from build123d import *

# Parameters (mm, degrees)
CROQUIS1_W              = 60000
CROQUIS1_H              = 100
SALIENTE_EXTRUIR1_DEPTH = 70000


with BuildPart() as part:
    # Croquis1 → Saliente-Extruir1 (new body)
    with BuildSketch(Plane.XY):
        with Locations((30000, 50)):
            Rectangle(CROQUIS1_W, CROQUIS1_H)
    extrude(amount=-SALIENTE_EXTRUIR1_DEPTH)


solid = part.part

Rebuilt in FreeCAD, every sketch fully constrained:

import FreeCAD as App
import Part
import Sketcher


def add_polygon(sketch, points):
    """Adds a closed chain of lines whose ends are joined by coincident constraints."""
    first, n = sketch.GeometryCount, len(points)
    for a, b in zip(points, points[1:] + points[:1]):
        sketch.addGeometry(Part.LineSegment(App.Vector(*a, 0), App.Vector(*b, 0)), False)
    for i in range(n):
        sketch.addConstraint(Sketcher.Constraint("Coincident", first + i, 2, first + (i + 1) % n, 1))

doc = App.newDocument("Part")
body = doc.addObject("PartDesign::Body", "Body")

# Sketch on XY plane
sketch1 = body.newObject("Sketcher::SketchObject", "Sketch")
sketch1.AttachmentSupport = (doc.getObject("XY_Plane"), [""])
sketch1.MapMode = "FlatFace"
add_polygon(sketch1, [(0, 100), (0, 0), (60000, 0), (60000, 100)])  # lines 0-3
sketch1.addConstraint(Sketcher.Constraint("Vertical", 0))
sketch1.addConstraint(Sketcher.Constraint("Horizontal", 1))
sketch1.addConstraint(Sketcher.Constraint("Vertical", 2))
sketch1.addConstraint(Sketcher.Constraint("Horizontal", 3))
sketch1.addConstraint(Sketcher.Constraint("Coincident", 0, 2, -1, 1))
sketch1.addConstraint(Sketcher.Constraint("DistanceX", 1, 1, 1, 2, 60000.0))
sketch1.addConstraint(Sketcher.Constraint("DistanceY", 0, 2, 0, 1, 100.0))
pad1 = body.newObject("PartDesign::Pad", "Pad")
pad1.Profile = sketch1
pad1.Length = 70000
pad1.Reversed = True

doc.recompute()
